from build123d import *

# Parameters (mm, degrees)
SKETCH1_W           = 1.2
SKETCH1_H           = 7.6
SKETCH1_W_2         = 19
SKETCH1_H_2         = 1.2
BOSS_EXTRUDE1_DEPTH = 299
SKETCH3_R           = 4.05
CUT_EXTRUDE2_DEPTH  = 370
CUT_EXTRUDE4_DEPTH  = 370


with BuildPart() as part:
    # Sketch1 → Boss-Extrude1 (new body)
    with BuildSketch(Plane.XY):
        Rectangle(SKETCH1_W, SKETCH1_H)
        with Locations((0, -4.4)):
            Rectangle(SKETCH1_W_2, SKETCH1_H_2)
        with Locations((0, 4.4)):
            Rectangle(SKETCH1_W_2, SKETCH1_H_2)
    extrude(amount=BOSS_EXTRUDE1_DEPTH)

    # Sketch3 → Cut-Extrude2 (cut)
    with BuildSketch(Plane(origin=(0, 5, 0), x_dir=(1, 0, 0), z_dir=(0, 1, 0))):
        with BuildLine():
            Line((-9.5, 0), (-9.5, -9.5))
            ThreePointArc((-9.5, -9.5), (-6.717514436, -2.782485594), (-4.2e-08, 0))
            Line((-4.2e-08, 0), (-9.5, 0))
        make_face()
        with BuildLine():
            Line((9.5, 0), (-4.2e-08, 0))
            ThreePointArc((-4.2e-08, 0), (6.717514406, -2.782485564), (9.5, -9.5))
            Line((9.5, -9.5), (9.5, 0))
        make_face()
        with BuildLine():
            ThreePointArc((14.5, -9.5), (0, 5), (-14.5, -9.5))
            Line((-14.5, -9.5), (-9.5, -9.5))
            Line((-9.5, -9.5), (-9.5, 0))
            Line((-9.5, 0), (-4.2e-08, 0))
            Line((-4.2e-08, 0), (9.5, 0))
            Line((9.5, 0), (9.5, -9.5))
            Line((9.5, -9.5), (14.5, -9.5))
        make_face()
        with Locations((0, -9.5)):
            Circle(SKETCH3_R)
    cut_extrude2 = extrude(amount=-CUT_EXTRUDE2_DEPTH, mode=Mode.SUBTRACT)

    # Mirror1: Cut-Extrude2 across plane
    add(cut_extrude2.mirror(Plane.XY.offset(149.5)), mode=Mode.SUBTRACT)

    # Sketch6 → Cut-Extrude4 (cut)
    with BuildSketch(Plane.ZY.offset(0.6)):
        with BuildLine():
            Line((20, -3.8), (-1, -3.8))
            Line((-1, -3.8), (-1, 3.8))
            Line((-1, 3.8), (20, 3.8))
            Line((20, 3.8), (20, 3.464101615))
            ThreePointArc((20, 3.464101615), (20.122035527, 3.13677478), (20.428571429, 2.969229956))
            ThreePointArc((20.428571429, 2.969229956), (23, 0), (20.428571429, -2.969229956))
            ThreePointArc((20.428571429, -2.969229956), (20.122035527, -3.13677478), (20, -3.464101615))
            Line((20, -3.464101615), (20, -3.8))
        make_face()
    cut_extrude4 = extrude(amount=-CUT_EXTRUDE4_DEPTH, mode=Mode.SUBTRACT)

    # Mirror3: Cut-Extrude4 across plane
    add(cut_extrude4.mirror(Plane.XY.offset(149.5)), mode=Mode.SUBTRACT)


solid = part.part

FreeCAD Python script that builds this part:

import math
import FreeCAD as App
import Part
import Sketcher

V = App.Vector
Q = App.Units.Quantity


def add_polygon(sketch, points):
    """Adds a closed chain of lines whose ends are joined by coincident constraints."""
    first, n = sketch.GeometryCount, len(points)
    for a, b in zip(points, points[1:] + points[:1]):
        sketch.addGeometry(Part.LineSegment(App.Vector(*a, 0), App.Vector(*b, 0)), False)
    for i in range(n):
        sketch.addConstraint(Sketcher.Constraint("Coincident", first + i, 2, first + (i + 1) % n, 1))

doc = App.newDocument("Part")
params = doc.addObject("Spreadsheet::Sheet", "Params")
for row, (alias, value) in enumerate([
    ("sketch1_width", "19 mm"),
    ("sketch1_width2", "8.9 mm"),
    ("sketch1_height", "7.6 mm"),
    ("sketch1_height2", "1.2 mm"),
    ("pad1_length", "299 mm"),
    ("sketch2_diameter", "8.1 mm"),
    ("sketch2_radius", "9.5 mm"),
    ("sketch2_radius2", "14.5 mm"),
    ("pocket1_length", "370 mm"),
    ("sketch3_radius", "3 mm"),
    ("sketch3_radius2", "0.5 mm"),
    ("sketch3_height", "21 mm"),
    ("sketch3_width", "7.6 mm"),
    ("pocket2_length", "370 mm"),
], start=1):
    params.set(f"A{row}", alias)
    params.set(f"B{row}", "=" + value)
    params.setAlias(f"B{row}", alias)

body = doc.addObject("PartDesign::Body", "Body")

sketch1 = body.newObject("Sketcher::SketchObject", "Sketch")
sketch1.AttachmentSupport = (doc.getObject("XY_Plane"), [""])
sketch1.MapMode = "FlatFace"
add_polygon(sketch1, [(-0.6, 3.8), (-0.6, -3.8), (-9.5, -3.8), (-9.5, -5), (9.5, -5), (9.5, -3.8), (0.6, -3.8), (0.6, 3.8), (9.5, 3.8), (9.5, 5), (-9.5, 5), (-9.5, 3.8)])
sketch1.addConstraint(Sketcher.Constraint("Vertical", 0))
sketch1.addConstraint(Sketcher.Constraint("Horizontal", 1))
sketch1.addConstraint(Sketcher.Constraint("Vertical", 2))
sketch1.addConstraint(Sketcher.Constraint("Horizontal", 3))
sketch1.addConstraint(Sketcher.Constraint("Vertical", 4))
sketch1.addConstraint(Sketcher.Constraint("Horizontal", 5))
sketch1.addConstraint(Sketcher.Constraint("Vertical", 6))
sketch1.addConstraint(Sketcher.Constraint("Horizontal", 7))
sketch1.addConstraint(Sketcher.Constraint("Vertical", 8))
sketch1.addConstraint(Sketcher.Constraint("Horizontal", 9))
sketch1.addConstraint(Sketcher.Constraint("Vertical", 10))
sketch1.addConstraint(Sketcher.Constraint("Horizontal", 11))
sketch1.addConstraint(Sketcher.Constraint("Symmetric", 0, 2, 6, 2, -1, 1))
sketch1.addConstraint(Sketcher.Constraint("Symmetric", 2, 2, 8, 2, -1, 1))
sketch1.addConstraint(Sketcher.Constraint("Symmetric", 4, 2, 10, 2, -1, 1))
sketch1.addConstraint(Sketcher.Constraint("Symmetric", 1, 2, 4, 2, -2))
sketch1.addConstraint(Sketcher.Constraint("DistanceX", 3, 1, 3, 2, Q("19 mm")))
sketch1.addConstraint(Sketcher.Constraint("DistanceX", 1, 2, 1, 1, Q("8.9 mm")))
sketch1.addConstraint(Sketcher.Constraint("DistanceY", 0, 2, 0, 1, Q("7.6 mm")))
sketch1.addConstraint(Sketcher.Constraint("DistanceY", 2, 2, 2, 1, Q("1.2 mm")))
sketch1.setExpression("Constraints[28]", "Params.sketch1_width")
sketch1.setExpression("Constraints[29]", "Params.sketch1_width2")
sketch1.setExpression("Constraints[30]", "Params.sketch1_height")
sketch1.setExpression("Constraints[31]", "Params.sketch1_height2")
pad1 = body.newObject("PartDesign::Pad", "Pad")
pad1.Profile = sketch1
pad1.setExpression("Length", "Params.pad1_length")

sketch2 = body.newObject("Sketcher::SketchObject", "Sketch001")
sketch2.AttachmentSupport = (doc.getObject("XZ_Plane"), [""])
sketch2.MapMode = "FlatFace"
sketch2.AttachmentOffset = App.Placement(V(0, 0, -5), App.Rotation())
sketch2.addGeometry(Part.ArcOfCircle(Part.Circle(V(0, 9.5, 0), V(0, 0, 1), 9.5), math.radians(-180), math.radians(-90)), False)
sketch2.addGeometry(Part.ArcOfCircle(Part.Circle(V(0, 9.5, 0), V(0, 0, 1), 9.5), math.radians(-90), math.radians(0)), False)
sketch2.addGeometry(Part.LineSegment(V(9.5, 9.5, 0), V(14.5, 9.5, 0)), False)
sketch2.addGeometry(Part.ArcOfCircle(Part.Circle(V(0, 9.5, 0), V(0, 0, 1), 14.5), math.radians(180), math.radians(360)), False)
sketch2.addGeometry(Part.LineSegment(V(-14.5, 9.5, 0), V(-9.5, 9.5, 0)), False)
sketch2.addGeometry(Part.Circle(V(0, 9.5, 0), V(0, 0, 1), 4.05), False)
sketch2.addConstraint(Sketcher.Constraint("Tangent", 0, 2, 1, 1))
sketch2.addConstraint(Sketcher.Constraint("Coincident", 1, 2, 2, 1))
sketch2.addConstraint(Sketcher.Constraint("Coincident", 2, 2, 3, 2))
sketch2.addConstraint(Sketcher.Constraint("Coincident", 3, 1, 4, 1))
sketch2.addConstraint(Sketcher.Constraint("Coincident", 4, 2, 0, 1))
sketch2.addConstraint(Sketcher.Constraint("Horizontal", 2))
sketch2.addConstraint(Sketcher.Constraint("Horizontal", 4))
sketch2.addConstraint(Sketcher.Constraint("Coincident", 0, 2, -1, 1))
sketch2.addConstraint(Sketcher.Constraint("Coincident", 3, 3, 0, 3))
sketch2.addConstraint(Sketcher.Constraint("Coincident", 5, 3, 0, 3))
sketch2.addConstraint(Sketcher.Constraint("Equal", 0, 1))
sketch2.addConstraint(Sketcher.Constraint("Symmetric", 2, 2, 3, 1, -2))
sketch2.addConstraint(Sketcher.Constraint("Horizontal", 5, 3, 1, 2))
sketch2.addConstraint(Sketcher.Constraint("Diameter", 5, Q("8.1 mm")))
sketch2.addConstraint(Sketcher.Constraint("Radius", 0, Q("9.5 mm")))
sketch2.addConstraint(Sketcher.Constraint("Radius", 3, Q("14.5 mm")))
sketch2.setExpression("Constraints[13]", "Params.sketch2_diameter")
sketch2.setExpression("Constraints[14]", "Params.sketch2_radius")
sketch2.setExpression("Constraints[15]", "Params.sketch2_radius2")
pocket1 = body.newObject("PartDesign::Pocket", "Pocket")
pocket1.Profile = sketch2
pocket1.setExpression("Length", "Params.pocket1_length")
pocket1.Reversed = True
doc.recompute()

datumplane = body.newObject("PartDesign::Plane", "DatumPlane")
datumplane.AttachmentSupport = (doc.getObject("XY_Plane"), [""])
datumplane.MapMode = "FlatFace"
datumplane.AttachmentOffset = App.Placement(V(0, 0, 149.5), App.Rotation())
mirrored = body.newObject("PartDesign::Mirrored", "Mirrored")
mirrored.Originals = [pocket1]
mirrored.MirrorPlane = (datumplane, [""])
body.Tip = mirrored

sketch3 = body.newObject("Sketcher::SketchObject", "Sketch002")
sketch3.AttachmentSupport = (doc.getObject("YZ_Plane"), [""])
sketch3.MapMode = "FlatFace"
sketch3.AttachmentOffset = App.Placement(V(0, 0, -0.6), App.Rotation())
sketch3.addGeometry(Part.LineSegment(V(-3.8, -1, 0), V(-3.8, 20, 0)), False)
sketch3.addGeometry(Part.LineSegment(V(-3.8, 20, 0), V(-3.464102, 20, 0)), False)
sketch3.addGeometry(Part.ArcOfCircle(Part.Circle(V(-3.464102, 20.5, 0), V(0, 0, 1), 0.5), math.radians(-90), math.radians(-8.213211)), False)
sketch3.addGeometry(Part.ArcOfCircle(Part.Circle(V(0, 20, 0), V(0, 0, 1), 3), math.radians(8.213211), math.radians(171.786789)), False)
sketch3.addGeometry(Part.ArcOfCircle(Part.Circle(V(3.464102, 20.5, 0), V(0, 0, 1), 0.5), math.radians(-171.786789), math.radians(-90)), False)
sketch3.addGeometry(Part.LineSegment(V(3.464102, 20, 0), V(3.8, 20, 0)), False)
sketch3.addGeometry(Part.LineSegment(V(3.8, 20, 0), V(3.8, -1, 0)), False)
sketch3.addGeometry(Part.LineSegment(V(3.8, -1, 0), V(-3.8, -1, 0)), False)
sketch3.addConstraint(Sketcher.Constraint("Coincident", 0, 2, 1, 1))
sketch3.addConstraint(Sketcher.Constraint("Tangent", 1, 2, 2, 1))
sketch3.addConstraint(Sketcher.Constraint("Tangent", 2, 2, 3, 2))
sketch3.addConstraint(Sketcher.Constraint("Tangent", 3, 1, 4, 1))
sketch3.addConstraint(Sketcher.Constraint("Tangent", 4, 2, 5, 1))
sketch3.addConstraint(Sketcher.Constraint("Coincident", 5, 2, 6, 1))
sketch3.addConstraint(Sketcher.Constraint("Coincident", 6, 2, 7, 1))
sketch3.addConstraint(Sketcher.Constraint("Coincident", 7, 2, 0, 1))
sketch3.addConstraint(Sketcher.Constraint("Vertical", 0))
sketch3.addConstraint(Sketcher.Constraint("Horizontal", 1))
sketch3.addConstraint(Sketcher.Constraint("Horizontal", 5))
sketch3.addConstraint(Sketcher.Constraint("Vertical", 6))
sketch3.addConstraint(Sketcher.Constraint("Horizontal", 7))
sketch3.addConstraint(Sketcher.Constraint("Equal", 2, 4))
sketch3.addConstraint(Sketcher.Constraint("Symmetric", 2, 3, 4, 3, -2))
sketch3.addConstraint(Sketcher.Constraint("Horizontal", 3, 3, 0, 2))
sketch3.addConstraint(Sketcher.Constraint("Equal", 1, 5))
sketch3.addConstraint(Sketcher.Constraint("Radius", 3, Q("3 mm")))
sketch3.addConstraint(Sketcher.Constraint("Radius", 2, Q("0.5 mm")))
sketch3.addConstraint(Sketcher.Constraint("DistanceY", 0, 1, 0, 2, Q("21 mm")))
sketch3.addConstraint(Sketcher.Constraint("DistanceX", 7, 2, 7, 1, Q("7.6 mm")))
sketch3.addConstraint(Sketcher.Constraint("DistanceY", -1, 1, 3, 3, Q("20 mm")))
sketch3.setExpression("Constraints[17]", "Params.sketch3_radius")
sketch3.setExpression("Constraints[18]", "Params.sketch3_radius2")
sketch3.setExpression("Constraints[19]", "Params.sketch3_height")
sketch3.setExpression("Constraints[20]", "Params.sketch3_width")
pocket2 = body.newObject("PartDesign::Pocket", "Pocket001")
pocket2.Profile = sketch3
pocket2.setExpression("Length", "Params.pocket2_length")
pocket2.Reversed = True
doc.recompute()

datumplane2 = body.newObject("PartDesign::Plane", "DatumPlane001")
datumplane2.AttachmentSupport = (doc.getObject("XY_Plane"), [""])
datumplane2.MapMode = "FlatFace"
datumplane2.AttachmentOffset = App.Placement(V(0, 0, 149.5), App.Rotation())
mirrored2 = body.newObject("PartDesign::Mirrored", "Mirrored001")
mirrored2.Originals = [pocket2]
mirrored2.MirrorPlane = (datumplane2, [""])
body.Tip = mirrored2

doc.recompute()
